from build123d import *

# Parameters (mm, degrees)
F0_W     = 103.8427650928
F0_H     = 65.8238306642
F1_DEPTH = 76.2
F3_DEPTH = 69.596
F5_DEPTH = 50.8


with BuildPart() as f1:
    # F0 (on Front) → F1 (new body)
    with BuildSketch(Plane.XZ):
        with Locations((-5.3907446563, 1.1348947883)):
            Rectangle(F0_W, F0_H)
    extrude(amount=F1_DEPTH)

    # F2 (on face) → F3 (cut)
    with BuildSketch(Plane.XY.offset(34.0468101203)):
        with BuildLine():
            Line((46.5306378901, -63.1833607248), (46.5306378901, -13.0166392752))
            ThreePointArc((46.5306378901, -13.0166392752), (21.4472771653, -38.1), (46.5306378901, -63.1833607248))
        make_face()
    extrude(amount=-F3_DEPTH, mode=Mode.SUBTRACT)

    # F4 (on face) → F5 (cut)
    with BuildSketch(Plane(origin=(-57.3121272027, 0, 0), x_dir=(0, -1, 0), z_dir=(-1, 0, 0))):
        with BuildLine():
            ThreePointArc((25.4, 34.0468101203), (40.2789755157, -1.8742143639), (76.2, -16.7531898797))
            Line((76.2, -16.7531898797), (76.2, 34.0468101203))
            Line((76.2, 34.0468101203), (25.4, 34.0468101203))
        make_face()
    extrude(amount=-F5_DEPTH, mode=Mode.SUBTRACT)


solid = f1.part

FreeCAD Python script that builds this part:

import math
import FreeCAD as App
import Part
import Sketcher

V = App.Vector
Q = App.Units.Quantity

doc = App.newDocument("Part")
body = doc.addObject("PartDesign::Body", "Body")

# Sketch on XZ plane
sketch1 = doc.addObject("Sketcher::SketchObject", "Sketch")
body.addObject(sketch1)
sketch1.AttachmentSupport = (doc.XZ_Plane, [""])
sketch1.MapMode = "FlatFace"
sketch1.addGeometry(Part.LineSegment(V(-57, 34, 0), V(-57, -32, 0)), False)
sketch1.addGeometry(Part.LineSegment(V(-57, -32, 0), V(47, -32, 0)), False)
sketch1.addGeometry(Part.LineSegment(V(47, -32, 0), V(47, 34, 0)), False)
sketch1.addGeometry(Part.LineSegment(V(47, 34, 0), V(-57, 34, 0)), False)
sketch1.addConstraint(Sketcher.Constraint("Coincident", 0, 2, 1, 1))
sketch1.addConstraint(Sketcher.Constraint("Coincident", 1, 2, 2, 1))
sketch1.addConstraint(Sketcher.Constraint("Coincident", 2, 2, 3, 1))
sketch1.addConstraint(Sketcher.Constraint("Coincident", 3, 2, 0, 1))
sketch1.addConstraint(Sketcher.Constraint("Vertical", 0))
sketch1.addConstraint(Sketcher.Constraint("Horizontal", 1))
sketch1.addConstraint(Sketcher.Constraint("Vertical", 2))
sketch1.addConstraint(Sketcher.Constraint("Horizontal", 3))
sketch1.addConstraint(Sketcher.Constraint("DistanceY", 0, 2, 0, 1, Q("65.823831 mm")))
sketch1.addConstraint(Sketcher.Constraint("DistanceX", 1, 1, 1, 2, Q("103.842765 mm")))
sketch1.addConstraint(Sketcher.Constraint("DistanceY", 0, 2, -1, 1, Q("31.777021 mm")))
sketch1.addConstraint(Sketcher.Constraint("DistanceX", 0, 2, -1, 1, Q("57.312127 mm")))
pad1 = doc.addObject("PartDesign::Pad", "Pad")
body.addObject(pad1)
pad1.Profile = sketch1
pad1.Length = Q("3 in")

# Sketch on XY plane
sketch2 = doc.addObject("Sketcher::SketchObject", "Sketch001")
body.addObject(sketch2)
sketch2.AttachmentSupport = (doc.XY_Plane, [""])
sketch2.MapMode = "FlatFace"
sketch2.AttachmentOffset = App.Placement(V(0, 0, 34.04681), App.Rotation())
sketch2.addGeometry(Part.LineSegment(V(47, -63, 0), V(47, -13, 0)), False)
sketch2.addGeometry(Part.ArcOfCircle(Part.Circle(V(47, -38, 0), V(0, 0, 1), 25), math.radians(90), math.radians(270)), False)
sketch2.addConstraint(Sketcher.Constraint("Coincident", 0, 1, 1, 2))
sketch2.addConstraint(Sketcher.Constraint("Coincident", 1, 1, 0, 2))
sketch2.addConstraint(Sketcher.Constraint("Vertical", 0))
sketch2.addConstraint(Sketcher.Constraint("Vertical", 1, 3, 0, 1))
sketch2.addConstraint(Sketcher.Constraint("DistanceY", 1, 3, -1, 1, Q("1.5 in")))
sketch2.addConstraint(Sketcher.Constraint("Radius", 1, Q("25.083361 mm")))
sketch2.addConstraint(Sketcher.Constraint("DistanceX", -1, 1, 1, 3, Q("46.530638 mm")))
pocket1 = doc.addObject("PartDesign::Pocket", "Pocket")
body.addObject(pocket1)
pocket1.Profile = sketch2
pocket1.Length = Q("2.74 in")

# Sketch on YZ plane
sketch3 = doc.addObject("Sketcher::SketchObject", "Sketch002")
body.addObject(sketch3)
sketch3.AttachmentSupport = (doc.YZ_Plane, [""])
sketch3.MapMode = "FlatFace"
sketch3.AttachmentOffset = App.Placement(V(0, 0, -57.312127), App.Rotation())
sketch3.addGeometry(Part.ArcOfCircle(Part.Circle(V(-76, 34, 0), V(0, 0, 1), 51), math.radians(-90), math.radians(0)), False)
sketch3.addGeometry(Part.LineSegment(V(-76, -17, 0), V(-76, 34, 0)), False)
sketch3.addGeometry(Part.LineSegment(V(-76, 34, 0), V(-25, 34, 0)), False)
sketch3.addConstraint(Sketcher.Constraint("Coincident", 0, 1, 1, 1))
sketch3.addConstraint(Sketcher.Constraint("Coincident", 1, 2, 2, 1))
sketch3.addConstraint(Sketcher.Constraint("Coincident", 2, 2, 0, 2))
sketch3.addConstraint(Sketcher.Constraint("Vertical", 1))
sketch3.addConstraint(Sketcher.Constraint("Horizontal", 2))
sketch3.addConstraint(Sketcher.Constraint("Coincident", 1, 2, 0, 3))
sketch3.addConstraint(Sketcher.Constraint("Radius", 0, Q("2 in")))
sketch3.addConstraint(Sketcher.Constraint("DistanceX", 0, 3, -1, 1, Q("3 in")))
sketch3.addConstraint(Sketcher.Constraint("DistanceY", -1, 1, 0, 3, Q("34.04681 mm")))
pocket2 = doc.addObject("PartDesign::Pocket", "Pocket001")
body.addObject(pocket2)
pocket2.Profile = sketch3
pocket2.Length = Q("2 in")
pocket2.Reversed = True

doc.recompute()
